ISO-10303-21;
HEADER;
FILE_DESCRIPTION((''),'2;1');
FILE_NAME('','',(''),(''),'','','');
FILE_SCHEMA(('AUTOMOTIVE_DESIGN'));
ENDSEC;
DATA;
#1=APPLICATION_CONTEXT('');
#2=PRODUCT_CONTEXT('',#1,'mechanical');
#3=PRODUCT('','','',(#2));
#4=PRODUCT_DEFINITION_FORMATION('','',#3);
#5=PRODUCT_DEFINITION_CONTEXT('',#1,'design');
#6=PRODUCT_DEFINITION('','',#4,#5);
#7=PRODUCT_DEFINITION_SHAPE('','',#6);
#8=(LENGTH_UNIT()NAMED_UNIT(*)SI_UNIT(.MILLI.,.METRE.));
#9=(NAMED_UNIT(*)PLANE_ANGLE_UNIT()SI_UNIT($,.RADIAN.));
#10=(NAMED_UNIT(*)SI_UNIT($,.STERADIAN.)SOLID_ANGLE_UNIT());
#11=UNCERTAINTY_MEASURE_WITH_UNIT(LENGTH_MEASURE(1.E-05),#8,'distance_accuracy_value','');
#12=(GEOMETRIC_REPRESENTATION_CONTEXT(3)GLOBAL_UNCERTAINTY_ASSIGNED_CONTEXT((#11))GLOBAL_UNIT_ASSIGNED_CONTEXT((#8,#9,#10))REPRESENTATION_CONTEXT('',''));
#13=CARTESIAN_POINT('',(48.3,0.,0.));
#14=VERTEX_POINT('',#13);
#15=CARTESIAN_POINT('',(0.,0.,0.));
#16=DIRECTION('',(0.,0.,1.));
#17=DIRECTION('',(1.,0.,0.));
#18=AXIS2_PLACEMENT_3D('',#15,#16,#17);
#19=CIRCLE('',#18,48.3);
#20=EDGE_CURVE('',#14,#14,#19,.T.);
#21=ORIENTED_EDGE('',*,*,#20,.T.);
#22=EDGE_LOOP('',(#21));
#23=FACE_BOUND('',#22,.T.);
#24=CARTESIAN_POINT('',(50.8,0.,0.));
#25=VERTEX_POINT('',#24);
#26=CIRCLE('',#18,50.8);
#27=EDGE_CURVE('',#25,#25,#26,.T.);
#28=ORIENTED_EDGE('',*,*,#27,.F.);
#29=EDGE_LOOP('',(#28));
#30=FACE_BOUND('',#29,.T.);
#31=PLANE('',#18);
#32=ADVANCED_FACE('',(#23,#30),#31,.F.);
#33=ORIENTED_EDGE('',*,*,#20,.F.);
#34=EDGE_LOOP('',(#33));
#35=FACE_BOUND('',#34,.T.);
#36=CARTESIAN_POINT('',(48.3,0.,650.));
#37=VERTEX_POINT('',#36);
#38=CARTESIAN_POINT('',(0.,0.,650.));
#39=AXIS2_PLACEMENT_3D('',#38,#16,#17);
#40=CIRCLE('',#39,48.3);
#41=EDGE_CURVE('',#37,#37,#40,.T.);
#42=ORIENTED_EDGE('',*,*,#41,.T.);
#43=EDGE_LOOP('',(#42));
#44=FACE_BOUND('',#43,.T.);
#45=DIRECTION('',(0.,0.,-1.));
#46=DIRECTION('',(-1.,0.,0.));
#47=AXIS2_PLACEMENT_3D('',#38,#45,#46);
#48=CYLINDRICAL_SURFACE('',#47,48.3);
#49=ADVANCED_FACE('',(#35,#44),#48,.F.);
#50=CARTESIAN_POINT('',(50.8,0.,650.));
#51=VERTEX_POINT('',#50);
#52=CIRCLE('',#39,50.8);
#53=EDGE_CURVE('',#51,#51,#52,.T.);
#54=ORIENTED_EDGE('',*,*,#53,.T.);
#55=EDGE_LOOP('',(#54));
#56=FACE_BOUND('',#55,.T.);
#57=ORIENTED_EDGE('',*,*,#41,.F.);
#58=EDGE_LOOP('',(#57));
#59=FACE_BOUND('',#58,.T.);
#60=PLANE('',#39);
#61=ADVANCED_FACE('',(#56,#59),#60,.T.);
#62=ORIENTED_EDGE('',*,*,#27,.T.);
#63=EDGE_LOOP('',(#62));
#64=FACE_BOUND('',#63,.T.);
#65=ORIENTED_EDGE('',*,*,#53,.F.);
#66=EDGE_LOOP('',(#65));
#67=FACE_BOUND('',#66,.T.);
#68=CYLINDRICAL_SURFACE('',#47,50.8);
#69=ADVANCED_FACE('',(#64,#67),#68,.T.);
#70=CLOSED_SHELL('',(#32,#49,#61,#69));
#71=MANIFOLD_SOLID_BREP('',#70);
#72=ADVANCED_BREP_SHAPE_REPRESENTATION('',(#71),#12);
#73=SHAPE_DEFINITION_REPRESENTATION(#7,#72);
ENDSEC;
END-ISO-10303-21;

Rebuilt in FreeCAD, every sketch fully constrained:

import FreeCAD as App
import Part
import Sketcher
from FreeCAD import Vector

doc = App.newDocument("Part")
body = doc.addObject("PartDesign::Body", "Body")

# Sketch on XY plane
sketch1 = doc.addObject("Sketcher::SketchObject", "Sketch")
body.addObject(sketch1)
sketch1.AttachmentSupport = (doc.XY_Plane, [""])
sketch1.MapMode = "FlatFace"
sketch1.addGeometry(Part.Circle(Vector(0, 0, 0), Vector(0, 0, 1), 51), False)
sketch1.addGeometry(Part.Circle(Vector(0, 0, 0), Vector(0, 0, 1), 48), False)
sketch1.addConstraint(Sketcher.Constraint("Coincident", 0, 3, -1, 1))
sketch1.addConstraint(Sketcher.Constraint("Coincident", 1, 3, -1, 1))
sketch1.addConstraint(Sketcher.Constraint("Diameter", 0, 101.6))
sketch1.addConstraint(Sketcher.Constraint("Diameter", 1, 96.6))
pad1 = doc.addObject("PartDesign::Pad", "Pad")
body.addObject(pad1)
pad1.Profile = sketch1
pad1.Length = 650

doc.recompute()
